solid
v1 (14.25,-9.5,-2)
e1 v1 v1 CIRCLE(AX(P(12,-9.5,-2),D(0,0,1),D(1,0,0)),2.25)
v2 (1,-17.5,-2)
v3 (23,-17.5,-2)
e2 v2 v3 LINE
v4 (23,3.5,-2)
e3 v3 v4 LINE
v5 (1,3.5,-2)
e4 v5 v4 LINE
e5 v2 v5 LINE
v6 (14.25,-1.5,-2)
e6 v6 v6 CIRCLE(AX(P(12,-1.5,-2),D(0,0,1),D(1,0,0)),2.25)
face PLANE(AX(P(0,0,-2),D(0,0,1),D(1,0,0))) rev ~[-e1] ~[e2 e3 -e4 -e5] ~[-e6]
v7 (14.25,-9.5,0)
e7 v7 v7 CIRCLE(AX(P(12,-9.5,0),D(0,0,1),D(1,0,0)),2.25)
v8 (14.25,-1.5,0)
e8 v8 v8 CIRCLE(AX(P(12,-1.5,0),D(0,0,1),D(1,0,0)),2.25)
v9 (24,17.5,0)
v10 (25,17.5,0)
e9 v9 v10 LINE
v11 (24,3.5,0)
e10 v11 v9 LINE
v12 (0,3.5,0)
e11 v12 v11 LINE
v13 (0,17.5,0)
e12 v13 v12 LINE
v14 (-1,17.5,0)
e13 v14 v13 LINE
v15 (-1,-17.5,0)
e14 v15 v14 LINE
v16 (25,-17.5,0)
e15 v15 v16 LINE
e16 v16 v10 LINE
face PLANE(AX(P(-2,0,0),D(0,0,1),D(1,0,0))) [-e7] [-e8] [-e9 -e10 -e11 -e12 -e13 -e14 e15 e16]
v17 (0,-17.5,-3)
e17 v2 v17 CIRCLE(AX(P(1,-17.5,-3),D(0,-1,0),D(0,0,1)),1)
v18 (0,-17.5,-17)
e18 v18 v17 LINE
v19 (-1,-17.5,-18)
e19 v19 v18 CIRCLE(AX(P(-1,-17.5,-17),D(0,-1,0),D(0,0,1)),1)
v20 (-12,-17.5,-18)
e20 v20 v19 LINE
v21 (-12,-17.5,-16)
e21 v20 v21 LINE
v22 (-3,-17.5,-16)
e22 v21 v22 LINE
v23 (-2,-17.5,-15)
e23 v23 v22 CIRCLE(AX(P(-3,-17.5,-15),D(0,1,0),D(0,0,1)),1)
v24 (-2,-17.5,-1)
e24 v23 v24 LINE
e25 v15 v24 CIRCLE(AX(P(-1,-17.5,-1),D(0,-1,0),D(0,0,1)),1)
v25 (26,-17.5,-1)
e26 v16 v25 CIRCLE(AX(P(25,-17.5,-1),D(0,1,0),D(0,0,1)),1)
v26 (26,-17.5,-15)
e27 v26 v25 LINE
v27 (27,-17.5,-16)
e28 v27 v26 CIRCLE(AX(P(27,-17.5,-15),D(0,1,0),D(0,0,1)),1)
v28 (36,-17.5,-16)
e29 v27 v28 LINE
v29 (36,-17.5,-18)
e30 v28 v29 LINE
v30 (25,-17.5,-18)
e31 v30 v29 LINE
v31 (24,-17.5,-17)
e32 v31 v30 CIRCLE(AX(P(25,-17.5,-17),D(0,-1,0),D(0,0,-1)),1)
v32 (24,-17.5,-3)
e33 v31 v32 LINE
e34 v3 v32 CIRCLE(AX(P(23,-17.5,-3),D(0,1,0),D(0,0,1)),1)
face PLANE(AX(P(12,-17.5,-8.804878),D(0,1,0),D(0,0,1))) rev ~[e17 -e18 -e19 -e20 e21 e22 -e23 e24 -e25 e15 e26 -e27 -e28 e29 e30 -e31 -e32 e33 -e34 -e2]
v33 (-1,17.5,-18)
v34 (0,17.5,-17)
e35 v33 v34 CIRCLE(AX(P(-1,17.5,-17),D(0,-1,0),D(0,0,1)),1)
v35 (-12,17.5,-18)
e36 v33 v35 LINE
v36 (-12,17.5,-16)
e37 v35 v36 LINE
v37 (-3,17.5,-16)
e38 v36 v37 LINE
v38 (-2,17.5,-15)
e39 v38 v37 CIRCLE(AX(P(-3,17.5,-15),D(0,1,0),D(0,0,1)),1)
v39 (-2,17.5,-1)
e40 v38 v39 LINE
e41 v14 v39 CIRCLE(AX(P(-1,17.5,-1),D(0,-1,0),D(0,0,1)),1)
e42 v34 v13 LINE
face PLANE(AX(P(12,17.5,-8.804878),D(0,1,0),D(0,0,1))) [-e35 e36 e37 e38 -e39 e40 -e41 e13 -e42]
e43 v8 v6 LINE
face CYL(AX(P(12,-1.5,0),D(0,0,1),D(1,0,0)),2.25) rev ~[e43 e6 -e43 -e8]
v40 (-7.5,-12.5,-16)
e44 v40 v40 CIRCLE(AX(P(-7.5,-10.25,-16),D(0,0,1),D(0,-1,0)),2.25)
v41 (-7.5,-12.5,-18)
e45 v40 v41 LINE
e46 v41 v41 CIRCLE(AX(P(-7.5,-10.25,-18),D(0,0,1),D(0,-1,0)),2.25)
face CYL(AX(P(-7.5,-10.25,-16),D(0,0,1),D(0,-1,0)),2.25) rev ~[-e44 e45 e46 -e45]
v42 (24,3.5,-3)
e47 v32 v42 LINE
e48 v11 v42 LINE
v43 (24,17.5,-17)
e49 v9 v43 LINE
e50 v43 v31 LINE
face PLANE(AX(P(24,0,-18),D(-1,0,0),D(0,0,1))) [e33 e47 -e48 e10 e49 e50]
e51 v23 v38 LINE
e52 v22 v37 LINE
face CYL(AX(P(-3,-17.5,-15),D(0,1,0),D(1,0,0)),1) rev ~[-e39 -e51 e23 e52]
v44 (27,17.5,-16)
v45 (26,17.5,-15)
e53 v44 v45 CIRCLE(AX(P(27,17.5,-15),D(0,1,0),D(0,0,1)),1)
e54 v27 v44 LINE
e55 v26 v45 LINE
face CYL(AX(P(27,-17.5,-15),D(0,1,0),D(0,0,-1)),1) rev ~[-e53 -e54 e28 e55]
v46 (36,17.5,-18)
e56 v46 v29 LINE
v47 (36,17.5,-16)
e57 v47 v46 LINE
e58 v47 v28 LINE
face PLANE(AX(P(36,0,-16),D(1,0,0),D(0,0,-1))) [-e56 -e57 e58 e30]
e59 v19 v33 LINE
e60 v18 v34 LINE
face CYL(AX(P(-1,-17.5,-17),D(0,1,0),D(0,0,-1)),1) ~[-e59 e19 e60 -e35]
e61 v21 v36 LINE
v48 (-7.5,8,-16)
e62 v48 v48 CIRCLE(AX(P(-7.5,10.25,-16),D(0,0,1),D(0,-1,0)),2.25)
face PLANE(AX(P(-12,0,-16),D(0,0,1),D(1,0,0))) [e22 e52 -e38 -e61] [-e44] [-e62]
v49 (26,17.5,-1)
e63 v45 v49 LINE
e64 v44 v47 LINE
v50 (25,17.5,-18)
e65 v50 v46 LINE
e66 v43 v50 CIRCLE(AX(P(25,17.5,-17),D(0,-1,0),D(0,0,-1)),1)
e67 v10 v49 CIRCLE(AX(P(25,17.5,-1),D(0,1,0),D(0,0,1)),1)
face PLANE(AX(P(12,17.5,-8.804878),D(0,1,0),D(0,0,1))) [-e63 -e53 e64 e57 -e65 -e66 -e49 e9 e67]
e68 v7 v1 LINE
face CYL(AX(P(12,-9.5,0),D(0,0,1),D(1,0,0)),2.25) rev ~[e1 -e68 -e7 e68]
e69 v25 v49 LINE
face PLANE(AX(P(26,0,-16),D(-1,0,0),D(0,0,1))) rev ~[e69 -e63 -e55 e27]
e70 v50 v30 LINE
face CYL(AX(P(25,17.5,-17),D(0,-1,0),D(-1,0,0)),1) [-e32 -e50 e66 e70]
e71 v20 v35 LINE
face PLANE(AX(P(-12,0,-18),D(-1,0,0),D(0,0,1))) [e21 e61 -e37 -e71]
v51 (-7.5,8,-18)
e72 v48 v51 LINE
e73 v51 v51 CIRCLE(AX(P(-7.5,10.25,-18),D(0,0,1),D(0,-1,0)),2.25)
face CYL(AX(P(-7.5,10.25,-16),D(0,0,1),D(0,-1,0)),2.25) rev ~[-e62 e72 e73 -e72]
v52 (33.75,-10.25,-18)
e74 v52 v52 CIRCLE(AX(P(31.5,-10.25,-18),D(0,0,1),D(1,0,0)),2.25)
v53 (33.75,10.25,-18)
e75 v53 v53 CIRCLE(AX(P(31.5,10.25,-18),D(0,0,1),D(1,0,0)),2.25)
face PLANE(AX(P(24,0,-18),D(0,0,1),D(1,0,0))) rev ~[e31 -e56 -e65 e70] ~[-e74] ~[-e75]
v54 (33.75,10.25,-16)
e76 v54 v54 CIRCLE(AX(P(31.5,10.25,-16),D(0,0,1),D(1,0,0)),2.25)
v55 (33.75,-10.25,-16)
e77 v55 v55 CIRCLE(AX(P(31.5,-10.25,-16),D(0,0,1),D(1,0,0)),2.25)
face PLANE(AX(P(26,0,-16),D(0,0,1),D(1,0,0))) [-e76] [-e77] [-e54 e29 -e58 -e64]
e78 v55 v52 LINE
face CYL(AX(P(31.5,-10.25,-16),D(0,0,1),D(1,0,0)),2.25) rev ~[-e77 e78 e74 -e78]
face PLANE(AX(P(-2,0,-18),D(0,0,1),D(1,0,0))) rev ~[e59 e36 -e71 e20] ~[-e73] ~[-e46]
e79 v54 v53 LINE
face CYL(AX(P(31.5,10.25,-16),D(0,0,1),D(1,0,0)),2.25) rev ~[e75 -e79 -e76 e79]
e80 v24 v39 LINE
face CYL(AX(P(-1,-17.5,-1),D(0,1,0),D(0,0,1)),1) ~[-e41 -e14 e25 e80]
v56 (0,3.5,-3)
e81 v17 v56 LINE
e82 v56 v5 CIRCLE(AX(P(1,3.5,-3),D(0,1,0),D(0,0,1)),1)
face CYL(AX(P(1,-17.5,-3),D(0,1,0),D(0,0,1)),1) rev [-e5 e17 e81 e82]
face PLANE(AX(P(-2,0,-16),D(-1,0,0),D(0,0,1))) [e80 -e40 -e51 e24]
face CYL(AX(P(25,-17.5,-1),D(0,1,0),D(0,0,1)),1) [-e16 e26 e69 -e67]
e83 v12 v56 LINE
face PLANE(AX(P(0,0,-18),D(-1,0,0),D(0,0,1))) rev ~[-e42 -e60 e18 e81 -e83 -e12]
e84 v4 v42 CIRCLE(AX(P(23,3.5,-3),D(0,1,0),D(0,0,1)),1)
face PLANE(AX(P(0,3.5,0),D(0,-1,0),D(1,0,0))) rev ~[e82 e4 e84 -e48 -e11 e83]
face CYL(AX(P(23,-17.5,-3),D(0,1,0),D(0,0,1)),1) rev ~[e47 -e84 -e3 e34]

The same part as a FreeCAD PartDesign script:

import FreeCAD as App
import Part
import Sketcher


def edges_at(feature, points):
    """Names of the edges that pass closest to the given points."""
    edges = feature.Shape.Edges
    near = lambda p: min(range(len(edges)), key=lambda i: edges[i].distToShape(Part.Vertex(*p))[0])
    return sorted({f"Edge{near(p) + 1}" for p in points})


def add_polygon(sketch, points):
    """Adds a closed chain of lines whose ends are joined by coincident constraints."""
    first, n = sketch.GeometryCount, len(points)
    for a, b in zip(points, points[1:] + points[:1]):
        sketch.addGeometry(Part.LineSegment(App.Vector(*a, 0), App.Vector(*b, 0)), False)
    for i in range(n):
        sketch.addConstraint(Sketcher.Constraint("Coincident", first + i, 2, first + (i + 1) % n, 1))

doc = App.newDocument("Part")
body = doc.addObject("PartDesign::Body", "Body")

# Sketch on XZ plane
sketch1 = body.newObject("Sketcher::SketchObject", "Sketch")
sketch1.AttachmentSupport = (doc.getObject("XZ_Plane"), [""])
sketch1.MapMode = "FlatFace"
add_polygon(sketch1, [(24, -2), (24, -18), (36, -18), (36, -16), (26, -16), (26, 0), (-2, 0), (-2, -16), (-12, -16), (-12, -18), (0, -18), (0, -2)])  # lines 0-11
sketch1.addConstraint([
    Sketcher.Constraint("Vertical", 0),
    Sketcher.Constraint("Horizontal", 1),
    Sketcher.Constraint("Vertical", 2),
    Sketcher.Constraint("Horizontal", 3),
    Sketcher.Constraint("Vertical", 4),
    Sketcher.Constraint("Horizontal", 5),
    Sketcher.Constraint("Vertical", 6),
    Sketcher.Constraint("Horizontal", 7),
    Sketcher.Constraint("Vertical", 8),
    Sketcher.Constraint("Horizontal", 9),
    Sketcher.Constraint("Vertical", 10),
    Sketcher.Constraint("Horizontal", 11),
    Sketcher.Constraint("PointOnObject", 4, 2, -1),
    Sketcher.Constraint("PointOnObject", 9, 2, -2),
    Sketcher.Constraint("Horizontal", 3, 2, 6, 2),
    Sketcher.Constraint("Horizontal", 1, 2, 8, 2),
    Sketcher.Constraint("Equal", 3, 7),
    Sketcher.Constraint("Equal", 1, 9),
    Sketcher.Constraint("Equal", 0, 4),
    Sketcher.Constraint("DistanceX", 1, 1, 1, 2, 12.0),
    Sketcher.Constraint("DistanceX", 3, 2, 3, 1, 10.0),
    Sketcher.Constraint("DistanceX", 5, 2, 5, 1, 28.0),
    Sketcher.Constraint("DistanceY", 0, 2, 0, 1, 16.0),
    Sketcher.Constraint("DistanceY", 2, 1, 2, 2, 2.0),
])
pad1 = body.newObject("PartDesign::Pad", "Pad")
pad1.Profile = sketch1
pad1.Length = 35
pad1.Midplane = True
doc.recompute()

fillet = body.newObject("PartDesign::Fillet", "Fillet")
fillet.Base = (pad1, edges_at(pad1, [(26, 0, 0)]))
fillet.Radius = 1
doc.recompute()

fillet2 = body.newObject("PartDesign::Fillet", "Fillet001")
fillet2.Base = (fillet, edges_at(fillet, [(-2, 0, 0)]))
fillet2.Radius = 1
doc.recompute()

fillet3 = body.newObject("PartDesign::Fillet", "Fillet002")
fillet3.Base = (fillet2, edges_at(fillet2, [(-2, 0, -16)]))
fillet3.Radius = 1
doc.recompute()

fillet4 = body.newObject("PartDesign::Fillet", "Fillet003")
fillet4.Base = (fillet3, edges_at(fillet3, [(0, 0, -18)]))
fillet4.Radius = 1
doc.recompute()

fillet5 = body.newObject("PartDesign::Fillet", "Fillet004")
fillet5.Base = (fillet4, edges_at(fillet4, [(24, 0, -18)]))
fillet5.Radius = 1
doc.recompute()

fillet6 = body.newObject("PartDesign::Fillet", "Fillet005")
fillet6.Base = (fillet5, edges_at(fillet5, [(26, 0, -16)]))
fillet6.Radius = 1
doc.recompute()

fillet7 = body.newObject("PartDesign::Fillet", "Fillet006")
fillet7.Base = (fillet6, edges_at(fillet6, [(0, 0, -2)]))
fillet7.Radius = 1
doc.recompute()

fillet8 = body.newObject("PartDesign::Fillet", "Fillet007")
fillet8.Base = (fillet7, edges_at(fillet7, [(24, 0, -2)]))
fillet8.Radius = 1

# Sketch on XY plane
sketch2 = body.newObject("Sketcher::SketchObject", "Sketch001")
sketch2.AttachmentSupport = (doc.getObject("XY_Plane"), [""])
sketch2.MapMode = "FlatFace"
add_polygon(sketch2, [(24, 18), (0, 18), (0, 4), (24, 4)])  # lines 0-3
sketch2.addConstraint([
    Sketcher.Constraint("Horizontal", 0),
    Sketcher.Constraint("Vertical", 1),
    Sketcher.Constraint("Horizontal", 2),
    Sketcher.Constraint("Vertical", 3),
    Sketcher.Constraint("PointOnObject", 0, 2, -2),
    Sketcher.Constraint("DistanceX", 0, 2, 0, 1, 24.0),
    Sketcher.Constraint("DistanceY", 1, 2, 1, 1, 14.0),
    Sketcher.Constraint("DistanceY", -1, 1, 0, 2, 17.5),
])
pocket1 = body.newObject("PartDesign::Pocket", "Pocket")
pocket1.Profile = sketch2
pocket1.Length = 4

# Sketch on XY plane
sketch3 = body.newObject("Sketcher::SketchObject", "Sketch002")
sketch3.AttachmentSupport = (doc.getObject("XY_Plane"), [""])
sketch3.MapMode = "FlatFace"
sketch3.AttachmentOffset = App.Placement(App.Vector(0, 0, -16), App.Rotation())
sketch3.addGeometry([
    Part.Circle(App.Vector(-7.5, 10.2, 0), App.Vector(0, 0, 1), 2.2),
    Part.Circle(App.Vector(-7.5, -10.2, 0), App.Vector(0, 0, 1), 2.2),
], False)
sketch3.addConstraint([
    Sketcher.Constraint("Equal", 0, 1),
    Sketcher.Constraint("Symmetric", 0, 3, 1, 3, -1),
    Sketcher.Constraint("Diameter", 0, 4.5),
    Sketcher.Constraint("DistanceX", 0, 3, -1, 1, 7.5),
    Sketcher.Constraint("DistanceY", 1, 3, 0, 3, 20.5),
])
pocket2 = body.newObject("PartDesign::Pocket", "Pocket001")
pocket2.Profile = sketch3
pocket2.Length = 2

# Sketch on XY plane
sketch4 = body.newObject("Sketcher::SketchObject", "Sketch003")
sketch4.AttachmentSupport = (doc.getObject("XY_Plane"), [""])
sketch4.MapMode = "FlatFace"
sketch4.AttachmentOffset = App.Placement(App.Vector(0, 0, -16), App.Rotation())
sketch4.addGeometry([
    Part.Circle(App.Vector(31.5, -10.2, 0), App.Vector(0, 0, 1), 2.2),
    Part.Circle(App.Vector(31.5, 10.2, 0), App.Vector(0, 0, 1), 2.2),
], False)
sketch4.addConstraint([
    Sketcher.Constraint("Equal", 0, 1),
    Sketcher.Constraint("Symmetric", 0, 3, 1, 3, -1),
    Sketcher.Constraint("Diameter", 0, 4.5),
    Sketcher.Constraint("DistanceX", -1, 1, 0, 3, 31.5),
    Sketcher.Constraint("DistanceY", 0, 3, 1, 3, 20.5),
])
pocket3 = body.newObject("PartDesign::Pocket", "Pocket002")
pocket3.Profile = sketch4
pocket3.Length = 2

# Sketch on XY plane
sketch5 = body.newObject("Sketcher::SketchObject", "Sketch004")
sketch5.AttachmentSupport = (doc.getObject("XY_Plane"), [""])
sketch5.MapMode = "FlatFace"
sketch5.addGeometry([
    Part.Circle(App.Vector(12, -1.5, 0), App.Vector(0, 0, 1), 2.2),
    Part.Circle(App.Vector(12, -9.5, 0), App.Vector(0, 0, 1), 2.2),
], False)
sketch5.addConstraint([
    Sketcher.Constraint("Equal", 0, 1),
    Sketcher.Constraint("Vertical", 0, 3, 1, 3),
    Sketcher.Constraint("Diameter", 0, 4.5),
    Sketcher.Constraint("DistanceX", -1, 1, 0, 3, 12.0),
    Sketcher.Constraint("DistanceY", 1, 3, 0, 3, 8.0),
    Sketcher.Constraint("DistanceY", 0, 3, -1, 1, 1.5),
])
pocket4 = body.newObject("PartDesign::Pocket", "Pocket003")
pocket4.Profile = sketch5
pocket4.Length = 2

doc.recompute()
